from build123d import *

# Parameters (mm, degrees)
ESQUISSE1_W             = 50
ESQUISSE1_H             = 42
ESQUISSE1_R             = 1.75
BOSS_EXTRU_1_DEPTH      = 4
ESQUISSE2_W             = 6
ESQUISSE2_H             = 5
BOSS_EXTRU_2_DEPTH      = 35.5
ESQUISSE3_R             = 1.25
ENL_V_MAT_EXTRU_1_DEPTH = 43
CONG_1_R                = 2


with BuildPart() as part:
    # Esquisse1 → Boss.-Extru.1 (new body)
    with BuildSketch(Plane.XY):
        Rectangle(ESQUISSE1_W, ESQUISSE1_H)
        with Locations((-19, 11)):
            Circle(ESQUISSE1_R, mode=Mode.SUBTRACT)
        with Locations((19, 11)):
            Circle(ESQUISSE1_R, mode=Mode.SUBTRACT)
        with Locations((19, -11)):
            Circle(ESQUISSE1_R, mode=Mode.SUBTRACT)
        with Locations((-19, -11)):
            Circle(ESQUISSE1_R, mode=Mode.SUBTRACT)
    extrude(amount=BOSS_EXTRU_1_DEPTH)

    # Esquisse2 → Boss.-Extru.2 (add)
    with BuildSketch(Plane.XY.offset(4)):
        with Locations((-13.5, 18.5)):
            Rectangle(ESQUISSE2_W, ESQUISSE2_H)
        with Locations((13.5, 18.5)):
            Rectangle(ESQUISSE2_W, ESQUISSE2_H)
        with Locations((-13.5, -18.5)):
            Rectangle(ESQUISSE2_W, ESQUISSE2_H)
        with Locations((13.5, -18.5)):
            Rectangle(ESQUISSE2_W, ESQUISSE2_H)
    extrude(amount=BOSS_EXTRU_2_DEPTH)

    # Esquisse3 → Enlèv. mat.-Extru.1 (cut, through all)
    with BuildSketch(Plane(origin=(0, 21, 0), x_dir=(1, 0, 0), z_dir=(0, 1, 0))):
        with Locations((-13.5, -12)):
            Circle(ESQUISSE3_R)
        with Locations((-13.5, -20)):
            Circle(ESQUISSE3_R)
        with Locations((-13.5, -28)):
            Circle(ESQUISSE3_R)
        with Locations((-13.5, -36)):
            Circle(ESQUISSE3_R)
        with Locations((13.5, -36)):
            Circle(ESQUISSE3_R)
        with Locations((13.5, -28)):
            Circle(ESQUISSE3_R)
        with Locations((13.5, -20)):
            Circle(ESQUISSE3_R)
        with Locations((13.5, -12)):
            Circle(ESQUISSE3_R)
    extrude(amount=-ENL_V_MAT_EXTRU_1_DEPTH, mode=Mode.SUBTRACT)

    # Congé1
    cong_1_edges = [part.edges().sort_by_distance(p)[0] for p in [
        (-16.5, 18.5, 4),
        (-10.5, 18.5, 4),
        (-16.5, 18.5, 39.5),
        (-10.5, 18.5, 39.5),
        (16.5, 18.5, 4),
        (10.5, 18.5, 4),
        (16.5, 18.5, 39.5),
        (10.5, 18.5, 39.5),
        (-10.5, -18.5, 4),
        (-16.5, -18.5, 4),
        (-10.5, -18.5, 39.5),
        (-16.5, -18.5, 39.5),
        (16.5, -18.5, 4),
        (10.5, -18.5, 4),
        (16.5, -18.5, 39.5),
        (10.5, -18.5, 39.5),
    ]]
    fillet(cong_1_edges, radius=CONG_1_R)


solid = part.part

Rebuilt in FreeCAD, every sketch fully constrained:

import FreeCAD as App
import Part
import Sketcher

V = App.Vector
Q = App.Units.Quantity


def edges_at(feature, points):
    """Names of the edges that pass closest to the given points."""
    edges = feature.Shape.Edges
    near = lambda p: min(range(len(edges)), key=lambda i: edges[i].distToShape(Part.Vertex(*p))[0])
    return sorted({f"Edge{near(p) + 1}" for p in points})

doc = App.newDocument("Part")
body = doc.addObject("PartDesign::Body", "Body")

# Sketch on XY plane
sketch1 = body.newObject("Sketcher::SketchObject", "Sketch")
sketch1.AttachmentSupport = (doc.getObject("XY_Plane"), [""])
sketch1.MapMode = "FlatFace"
sketch1.addGeometry([
    Part.LineSegment(V(-25, 21, 0), V(-25, -21, 0)),  # 0
    Part.LineSegment(V(-25, -21, 0), V(25, -21, 0)),  # 1
    Part.LineSegment(V(25, -21, 0), V(25, 21, 0)),  # 2
    Part.LineSegment(V(25, 21, 0), V(-25, 21, 0)),  # 3
    Part.Circle(V(-19, -11, 0), V(0, 0, 1), 1.8),  # 4
    Part.Circle(V(19, -11, 0), V(0, 0, 1), 1.8),  # 5
    Part.Circle(V(-19, 11, 0), V(0, 0, 1), 1.8),  # 6
    Part.Circle(V(19, 11, 0), V(0, 0, 1), 1.8),  # 7
], False)
sketch1.addConstraint([
    Sketcher.Constraint("Coincident", 0, 2, 1, 1),
    Sketcher.Constraint("Coincident", 1, 2, 2, 1),
    Sketcher.Constraint("Coincident", 2, 2, 3, 1),
    Sketcher.Constraint("Coincident", 3, 2, 0, 1),
    Sketcher.Constraint("Vertical", 0),
    Sketcher.Constraint("Horizontal", 1),
    Sketcher.Constraint("Vertical", 2),
    Sketcher.Constraint("Horizontal", 3),
    Sketcher.Constraint("Equal", 4, 5),
    Sketcher.Constraint("Equal", 5, 6),
    Sketcher.Constraint("Equal", 6, 7),
    Sketcher.Constraint("Symmetric", 5, 3, 6, 3, -1, 1),
    Sketcher.Constraint("Symmetric", 4, 3, 7, 3, -1, 1),
    Sketcher.Constraint("Symmetric", 0, 2, 2, 2, -1, 1),
    Sketcher.Constraint("Symmetric", 4, 3, 5, 3, -2),
    Sketcher.Constraint("Diameter", 4, Q("3.5 mm")),
    Sketcher.Constraint("DistanceX", 1, 1, 1, 2, Q("50 mm")),
    Sketcher.Constraint("DistanceY", 0, 2, 0, 1, Q("42 mm")),
    Sketcher.Constraint("DistanceX", 4, 3, -1, 1, Q("19 mm")),
    Sketcher.Constraint("DistanceY", 4, 3, -1, 1, Q("11 mm")),
])
pad1 = body.newObject("PartDesign::Pad", "Pad")
pad1.Profile = sketch1
pad1.Length = 4

# Sketch on XY plane
sketch2 = body.newObject("Sketcher::SketchObject", "Sketch001")
sketch2.AttachmentSupport = (doc.getObject("XY_Plane"), [""])
sketch2.MapMode = "FlatFace"
sketch2.AttachmentOffset = App.Placement(V(0, 0, 4), App.Rotation())
sketch2.addGeometry([
    Part.LineSegment(V(-16, 21, 0), V(-16, 16, 0)),  # 0
    Part.LineSegment(V(-16, 16, 0), V(-10, 16, 0)),  # 1
    Part.LineSegment(V(-10, 16, 0), V(-10, 21, 0)),  # 2
    Part.LineSegment(V(-10, 21, 0), V(-16, 21, 0)),  # 3
    Part.LineSegment(V(10, 21, 0), V(10, 16, 0)),  # 4
    Part.LineSegment(V(10, 16, 0), V(16, 16, 0)),  # 5
    Part.LineSegment(V(16, 16, 0), V(16, 21, 0)),  # 6
    Part.LineSegment(V(16, 21, 0), V(10, 21, 0)),  # 7
    Part.LineSegment(V(-16, -16, 0), V(-16, -21, 0)),  # 8
    Part.LineSegment(V(-16, -21, 0), V(-10, -21, 0)),  # 9
    Part.LineSegment(V(-10, -21, 0), V(-10, -16, 0)),  # 10
    Part.LineSegment(V(-10, -16, 0), V(-16, -16, 0)),  # 11
    Part.LineSegment(V(10, -16, 0), V(10, -21, 0)),  # 12
    Part.LineSegment(V(10, -21, 0), V(16, -21, 0)),  # 13
    Part.LineSegment(V(16, -21, 0), V(16, -16, 0)),  # 14
    Part.LineSegment(V(16, -16, 0), V(10, -16, 0)),  # 15
], False)
sketch2.addConstraint([
    Sketcher.Constraint("Coincident", 0, 2, 1, 1),
    Sketcher.Constraint("Coincident", 1, 2, 2, 1),
    Sketcher.Constraint("Coincident", 2, 2, 3, 1),
    Sketcher.Constraint("Coincident", 3, 2, 0, 1),
    Sketcher.Constraint("Coincident", 4, 2, 5, 1),
    Sketcher.Constraint("Coincident", 5, 2, 6, 1),
    Sketcher.Constraint("Coincident", 6, 2, 7, 1),
    Sketcher.Constraint("Coincident", 7, 2, 4, 1),
    Sketcher.Constraint("Coincident", 8, 2, 9, 1),
    Sketcher.Constraint("Coincident", 9, 2, 10, 1),
    Sketcher.Constraint("Coincident", 10, 2, 11, 1),
    Sketcher.Constraint("Coincident", 11, 2, 8, 1),
    Sketcher.Constraint("Coincident", 12, 2, 13, 1),
    Sketcher.Constraint("Coincident", 13, 2, 14, 1),
    Sketcher.Constraint("Coincident", 14, 2, 15, 1),
    Sketcher.Constraint("Coincident", 15, 2, 12, 1),
    Sketcher.Constraint("Vertical", 0),
    Sketcher.Constraint("Horizontal", 1),
    Sketcher.Constraint("Vertical", 2),
    Sketcher.Constraint("Horizontal", 3),
    Sketcher.Constraint("Vertical", 4),
    Sketcher.Constraint("Horizontal", 5),
    Sketcher.Constraint("Vertical", 6),
    Sketcher.Constraint("Horizontal", 7),
    Sketcher.Constraint("Vertical", 8),
    Sketcher.Constraint("Horizontal", 9),
    Sketcher.Constraint("Vertical", 10),
    Sketcher.Constraint("Horizontal", 11),
    Sketcher.Constraint("Vertical", 12),
    Sketcher.Constraint("Horizontal", 13),
    Sketcher.Constraint("Vertical", 14),
    Sketcher.Constraint("Horizontal", 15),
    Sketcher.Constraint("Symmetric", 6, 2, 8, 2, -1, 1),
    Sketcher.Constraint("Symmetric", 4, 2, 10, 2, -1, 1),
    Sketcher.Constraint("Symmetric", 2, 2, 12, 2, -1, 1),
    Sketcher.Constraint("Symmetric", 0, 2, 14, 2, -1, 1),
    Sketcher.Constraint("Symmetric", 1, 2, 4, 2, -2),
    Sketcher.Constraint("Symmetric", 3, 2, 6, 2, -2),
    Sketcher.Constraint("DistanceX", 1, 1, 1, 2, Q("6 mm")),
    Sketcher.Constraint("DistanceY", 0, 2, 0, 1, Q("5 mm")),
    Sketcher.Constraint("DistanceY", -1, 1, 0, 2, Q("16 mm")),
    Sketcher.Constraint("DistanceX", 1, 2, 4, 2, Q("21 mm")),
])
pad2 = body.newObject("PartDesign::Pad", "Pad001")
pad2.Profile = sketch2
pad2.Length = 35.5

# Sketch on XZ plane
sketch3 = body.newObject("Sketcher::SketchObject", "Sketch002")
sketch3.AttachmentSupport = (doc.getObject("XZ_Plane"), [""])
sketch3.MapMode = "FlatFace"
sketch3.AttachmentOffset = App.Placement(V(0, 0, -21), App.Rotation())
sketch3.addGeometry([
    Part.Circle(V(-13.5, 12, 0), V(0, 0, 1), 1.2),  # 0
    Part.Circle(V(-13.5, 20, 0), V(0, 0, 1), 1.2),  # 1
    Part.Circle(V(-13.5, 28, 0), V(0, 0, 1), 1.2),  # 2
    Part.Circle(V(-13.5, 36, 0), V(0, 0, 1), 1.2),  # 3
    Part.Circle(V(13.5, 36, 0), V(0, 0, 1), 1.2),  # 4
    Part.Circle(V(13.5, 28, 0), V(0, 0, 1), 1.2),  # 5
    Part.Circle(V(13.5, 20, 0), V(0, 0, 1), 1.2),  # 6
    Part.Circle(V(13.5, 12, 0), V(0, 0, 1), 1.2),  # 7
], False)
sketch3.addConstraint([
    Sketcher.Constraint("Equal", 0, 1),
    Sketcher.Constraint("Equal", 1, 2),
    Sketcher.Constraint("Equal", 2, 3),
    Sketcher.Constraint("Equal", 3, 4),
    Sketcher.Constraint("Equal", 4, 5),
    Sketcher.Constraint("Equal", 5, 6),
    Sketcher.Constraint("Equal", 6, 7),
    Sketcher.Constraint("Symmetric", 3, 3, 4, 3, -2),
    Sketcher.Constraint("Symmetric", 2, 3, 5, 3, -2),
    Sketcher.Constraint("Symmetric", 1, 3, 6, 3, -2),
    Sketcher.Constraint("Symmetric", 0, 3, 7, 3, -2),
    Sketcher.Constraint("Vertical", 0, 3, 1, 3),
    Sketcher.Constraint("Vertical", 1, 3, 2, 3),
    Sketcher.Constraint("Vertical", 2, 3, 3, 3),
    Sketcher.Constraint("Diameter", 0, Q("2.5 mm")),
    Sketcher.Constraint("DistanceY", -1, 1, 0, 3, Q("12 mm")),
    Sketcher.Constraint("DistanceY", -1, 1, 1, 3, Q("20 mm")),
    Sketcher.Constraint("DistanceY", -1, 1, 2, 3, Q("28 mm")),
    Sketcher.Constraint("DistanceY", -1, 1, 3, 3, Q("36 mm")),
    Sketcher.Constraint("DistanceX", 3, 3, 4, 3, Q("27 mm")),
])
pocket1 = body.newObject("PartDesign::Pocket", "Pocket")
pocket1.Profile = sketch3
pocket1.Type = "ThroughAll"
pocket1.Reversed = True
doc.recompute()

fillet = body.newObject("PartDesign::Fillet", "Fillet")
fillet.Base = (pocket1, edges_at(pocket1, [
    (-16.5, 18.5, 4),
    (-10.5, 18.5, 4),
    (-16.5, 18.5, 39.5),
    (-10.5, 18.5, 39.5),
    (16.5, 18.5, 4),
    (10.5, 18.5, 4),
    (16.5, 18.5, 39.5),
    (10.5, 18.5, 39.5),
    (-10.5, -18.5, 4),
    (-16.5, -18.5, 4),
    (-10.5, -18.5, 39.5),
    (-16.5, -18.5, 39.5),
    (16.5, -18.5, 4),
    (10.5, -18.5, 4),
    (16.5, -18.5, 39.5),
    (10.5, -18.5, 39.5),
]))
fillet.Radius = 2

doc.recompute()
